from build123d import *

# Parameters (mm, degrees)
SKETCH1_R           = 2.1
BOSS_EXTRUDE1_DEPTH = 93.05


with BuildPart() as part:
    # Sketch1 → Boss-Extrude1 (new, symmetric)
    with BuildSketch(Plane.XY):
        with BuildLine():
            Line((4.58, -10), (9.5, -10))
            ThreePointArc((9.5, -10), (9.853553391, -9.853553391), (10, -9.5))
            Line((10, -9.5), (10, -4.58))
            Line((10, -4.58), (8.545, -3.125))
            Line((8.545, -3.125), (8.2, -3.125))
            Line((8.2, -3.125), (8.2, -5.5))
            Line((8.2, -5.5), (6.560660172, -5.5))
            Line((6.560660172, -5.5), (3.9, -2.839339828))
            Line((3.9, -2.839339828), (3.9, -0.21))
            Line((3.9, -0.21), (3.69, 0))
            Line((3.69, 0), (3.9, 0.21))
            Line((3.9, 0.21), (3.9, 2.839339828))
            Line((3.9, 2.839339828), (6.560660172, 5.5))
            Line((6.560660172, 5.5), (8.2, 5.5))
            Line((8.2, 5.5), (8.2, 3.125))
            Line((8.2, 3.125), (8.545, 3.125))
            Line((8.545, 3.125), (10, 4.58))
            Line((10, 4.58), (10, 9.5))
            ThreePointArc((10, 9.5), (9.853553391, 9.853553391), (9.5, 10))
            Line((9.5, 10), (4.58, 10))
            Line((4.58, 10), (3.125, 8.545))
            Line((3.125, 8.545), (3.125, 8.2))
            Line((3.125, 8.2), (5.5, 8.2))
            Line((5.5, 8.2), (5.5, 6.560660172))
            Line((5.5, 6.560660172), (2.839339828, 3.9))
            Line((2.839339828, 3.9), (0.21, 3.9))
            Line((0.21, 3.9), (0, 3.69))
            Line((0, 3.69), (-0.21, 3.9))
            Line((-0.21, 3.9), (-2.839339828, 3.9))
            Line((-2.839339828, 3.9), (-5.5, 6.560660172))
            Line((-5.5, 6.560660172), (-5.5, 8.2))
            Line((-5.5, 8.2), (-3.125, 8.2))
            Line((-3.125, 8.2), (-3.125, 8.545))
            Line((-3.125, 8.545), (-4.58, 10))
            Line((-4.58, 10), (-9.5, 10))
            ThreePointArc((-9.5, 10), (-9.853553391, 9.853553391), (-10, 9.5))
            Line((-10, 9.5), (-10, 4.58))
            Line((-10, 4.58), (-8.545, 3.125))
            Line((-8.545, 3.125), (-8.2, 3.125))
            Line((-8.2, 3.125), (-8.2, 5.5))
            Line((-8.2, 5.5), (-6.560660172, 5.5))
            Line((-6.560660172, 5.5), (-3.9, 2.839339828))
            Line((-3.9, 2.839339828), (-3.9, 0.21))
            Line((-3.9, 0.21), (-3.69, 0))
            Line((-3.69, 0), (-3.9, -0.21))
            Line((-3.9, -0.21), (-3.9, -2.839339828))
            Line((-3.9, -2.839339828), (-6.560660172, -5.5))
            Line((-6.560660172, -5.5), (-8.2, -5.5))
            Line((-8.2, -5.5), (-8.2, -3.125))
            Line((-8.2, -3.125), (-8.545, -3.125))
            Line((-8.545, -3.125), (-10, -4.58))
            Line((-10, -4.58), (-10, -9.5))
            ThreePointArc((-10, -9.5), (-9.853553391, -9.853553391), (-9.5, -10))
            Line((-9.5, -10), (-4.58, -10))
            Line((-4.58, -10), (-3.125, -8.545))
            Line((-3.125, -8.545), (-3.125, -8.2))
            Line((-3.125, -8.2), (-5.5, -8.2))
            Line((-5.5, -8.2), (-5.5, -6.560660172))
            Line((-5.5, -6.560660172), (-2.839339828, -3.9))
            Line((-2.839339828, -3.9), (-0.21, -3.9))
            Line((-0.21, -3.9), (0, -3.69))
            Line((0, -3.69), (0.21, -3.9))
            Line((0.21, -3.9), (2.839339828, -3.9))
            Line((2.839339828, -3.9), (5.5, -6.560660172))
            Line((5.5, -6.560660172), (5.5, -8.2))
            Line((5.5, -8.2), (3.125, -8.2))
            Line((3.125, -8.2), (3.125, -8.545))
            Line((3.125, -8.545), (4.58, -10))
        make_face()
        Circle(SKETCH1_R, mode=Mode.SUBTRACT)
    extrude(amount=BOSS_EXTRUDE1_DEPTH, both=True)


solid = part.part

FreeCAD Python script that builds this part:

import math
import FreeCAD as App
import Part
import Sketcher
from FreeCAD import Vector

doc = App.newDocument("Part")
params = doc.addObject("Spreadsheet::Sheet", "Params")
for row, (alias, value) in enumerate([
    ("sketch1_diameter", "4.2 mm"),
    ("sketch1_radius", "0.5 mm"),
    ("sketch1_width", "4.92 mm"),
    ("pad1_length", "186.1 mm"),
], start=1):
    params.set(f"A{row}", alias)
    params.set(f"B{row}", "=" + value)
    params.setAlias(f"B{row}", alias)

body = doc.addObject("PartDesign::Body", "Body")

sketch1 = body.newObject("Sketcher::SketchObject", "Sketch")
sketch1.AttachmentSupport = (doc.getObject("XY_Plane"), [""])
sketch1.MapMode = "FlatFace"
sketch1.addGeometry([
    Part.LineSegment(Vector(4.58, -10, 0), Vector(9.5, -10, 0)),
    Part.ArcOfCircle(Part.Circle(Vector(9.5, -9.5, 0), Vector(0, 0, 1), 0.5), math.radians(-90), math.radians(0)),
    Part.LineSegment(Vector(10, -9.5, 0), Vector(10, -4.58, 0)),
    Part.LineSegment(Vector(10, -4.58, 0), Vector(8.545, -3.125, 0)),
    Part.LineSegment(Vector(8.545, -3.125, 0), Vector(8.2, -3.125, 0)),
    Part.LineSegment(Vector(8.2, -3.125, 0), Vector(8.2, -5.5, 0)),
    Part.LineSegment(Vector(8.2, -5.5, 0), Vector(6.56066, -5.5, 0)),
    Part.LineSegment(Vector(6.56066, -5.5, 0), Vector(3.9, -2.83934, 0)),
    Part.LineSegment(Vector(3.9, -2.83934, 0), Vector(3.9, -0.21, 0)),
    Part.LineSegment(Vector(3.9, -0.21, 0), Vector(3.69, 0, 0)),
    Part.LineSegment(Vector(3.69, 0, 0), Vector(3.9, 0.21, 0)),
    Part.LineSegment(Vector(3.9, 0.21, 0), Vector(3.9, 2.83934, 0)),
    Part.LineSegment(Vector(3.9, 2.83934, 0), Vector(6.56066, 5.5, 0)),
    Part.LineSegment(Vector(6.56066, 5.5, 0), Vector(8.2, 5.5, 0)),
    Part.LineSegment(Vector(8.2, 5.5, 0), Vector(8.2, 3.125, 0)),
    Part.LineSegment(Vector(8.2, 3.125, 0), Vector(8.545, 3.125, 0)),
    Part.LineSegment(Vector(8.545, 3.125, 0), Vector(10, 4.58, 0)),
    Part.LineSegment(Vector(10, 4.58, 0), Vector(10, 9.5, 0)),
    Part.ArcOfCircle(Part.Circle(Vector(9.5, 9.5, 0), Vector(0, 0, 1), 0.5), math.radians(0), math.radians(90)),
    Part.LineSegment(Vector(9.5, 10, 0), Vector(4.58, 10, 0)),
    Part.LineSegment(Vector(4.58, 10, 0), Vector(3.125, 8.545, 0)),
    Part.LineSegment(Vector(3.125, 8.545, 0), Vector(3.125, 8.2, 0)),
    Part.LineSegment(Vector(3.125, 8.2, 0), Vector(5.5, 8.2, 0)),
    Part.LineSegment(Vector(5.5, 8.2, 0), Vector(5.5, 6.56066, 0)),
    Part.LineSegment(Vector(5.5, 6.56066, 0), Vector(2.83934, 3.9, 0)),
    Part.LineSegment(Vector(2.83934, 3.9, 0), Vector(0.21, 3.9, 0)),
    Part.LineSegment(Vector(0.21, 3.9, 0), Vector(0, 3.69, 0)),
    Part.LineSegment(Vector(0, 3.69, 0), Vector(-0.21, 3.9, 0)),
    Part.LineSegment(Vector(-0.21, 3.9, 0), Vector(-2.83934, 3.9, 0)),
    Part.LineSegment(Vector(-2.83934, 3.9, 0), Vector(-5.5, 6.56066, 0)),
    Part.LineSegment(Vector(-5.5, 6.56066, 0), Vector(-5.5, 8.2, 0)),
    Part.LineSegment(Vector(-5.5, 8.2, 0), Vector(-3.125, 8.2, 0)),
    Part.LineSegment(Vector(-3.125, 8.2, 0), Vector(-3.125, 8.545, 0)),
    Part.LineSegment(Vector(-3.125, 8.545, 0), Vector(-4.58, 10, 0)),
    Part.LineSegment(Vector(-4.58, 10, 0), Vector(-9.5, 10, 0)),
    Part.ArcOfCircle(Part.Circle(Vector(-9.5, 9.5, 0), Vector(0, 0, 1), 0.5), math.radians(90), math.radians(180)),
    Part.LineSegment(Vector(-10, 9.5, 0), Vector(-10, 4.58, 0)),
    Part.LineSegment(Vector(-10, 4.58, 0), Vector(-8.545, 3.125, 0)),
    Part.LineSegment(Vector(-8.545, 3.125, 0), Vector(-8.2, 3.125, 0)),
    Part.LineSegment(Vector(-8.2, 3.125, 0), Vector(-8.2, 5.5, 0)),
    Part.LineSegment(Vector(-8.2, 5.5, 0), Vector(-6.56066, 5.5, 0)),
    Part.LineSegment(Vector(-6.56066, 5.5, 0), Vector(-3.9, 2.83934, 0)),
    Part.LineSegment(Vector(-3.9, 2.83934, 0), Vector(-3.9, 0.21, 0)),
    Part.LineSegment(Vector(-3.9, 0.21, 0), Vector(-3.69, 0, 0)),
    Part.LineSegment(Vector(-3.69, 0, 0), Vector(-3.9, -0.21, 0)),
    Part.LineSegment(Vector(-3.9, -0.21, 0), Vector(-3.9, -2.83934, 0)),
    Part.LineSegment(Vector(-3.9, -2.83934, 0), Vector(-6.56066, -5.5, 0)),
    Part.LineSegment(Vector(-6.56066, -5.5, 0), Vector(-8.2, -5.5, 0)),
    Part.LineSegment(Vector(-8.2, -5.5, 0), Vector(-8.2, -3.125, 0)),
    Part.LineSegment(Vector(-8.2, -3.125, 0), Vector(-8.545, -3.125, 0)),
    Part.LineSegment(Vector(-8.545, -3.125, 0), Vector(-10, -4.58, 0)),
    Part.LineSegment(Vector(-10, -4.58, 0), Vector(-10, -9.5, 0)),
    Part.ArcOfCircle(Part.Circle(Vector(-9.5, -9.5, 0), Vector(0, 0, 1), 0.5), math.radians(180), math.radians(270)),
    Part.LineSegment(Vector(-9.5, -10, 0), Vector(-4.58, -10, 0)),
    Part.LineSegment(Vector(-4.58, -10, 0), Vector(-3.125, -8.545, 0)),
    Part.LineSegment(Vector(-3.125, -8.545, 0), Vector(-3.125, -8.2, 0)),
    Part.LineSegment(Vector(-3.125, -8.2, 0), Vector(-5.5, -8.2, 0)),
    Part.LineSegment(Vector(-5.5, -8.2, 0), Vector(-5.5, -6.56066, 0)),
    Part.LineSegment(Vector(-5.5, -6.56066, 0), Vector(-2.83934, -3.9, 0)),
    Part.LineSegment(Vector(-2.83934, -3.9, 0), Vector(-0.21, -3.9, 0)),
    Part.LineSegment(Vector(-0.21, -3.9, 0), Vector(0, -3.69, 0)),
    Part.LineSegment(Vector(0, -3.69, 0), Vector(0.21, -3.9, 0)),
    Part.LineSegment(Vector(0.21, -3.9, 0), Vector(2.83934, -3.9, 0)),
    Part.LineSegment(Vector(2.83934, -3.9, 0), Vector(5.5, -6.56066, 0)),
    Part.LineSegment(Vector(5.5, -6.56066, 0), Vector(5.5, -8.2, 0)),
    Part.LineSegment(Vector(5.5, -8.2, 0), Vector(3.125, -8.2, 0)),
    Part.LineSegment(Vector(3.125, -8.2, 0), Vector(3.125, -8.545, 0)),
    Part.LineSegment(Vector(3.125, -8.545, 0), Vector(4.58, -10, 0)),
    Part.Circle(Vector(0, 0, 0), Vector(0, 0, 1), 2.1),
], False)
sketch1.addConstraint([
    Sketcher.Constraint("Tangent", 0, 2, 1, 1),
    Sketcher.Constraint("Tangent", 1, 2, 2, 1),
    Sketcher.Constraint("Coincident", 2, 2, 3, 1),
    Sketcher.Constraint("Coincident", 3, 2, 4, 1),
    Sketcher.Constraint("Coincident", 4, 2, 5, 1),
    Sketcher.Constraint("Coincident", 5, 2, 6, 1),
    Sketcher.Constraint("Coincident", 6, 2, 7, 1),
    Sketcher.Constraint("Coincident", 7, 2, 8, 1),
    Sketcher.Constraint("Coincident", 8, 2, 9, 1),
    Sketcher.Constraint("Coincident", 9, 2, 10, 1),
    Sketcher.Constraint("Coincident", 10, 2, 11, 1),
    Sketcher.Constraint("Coincident", 11, 2, 12, 1),
    Sketcher.Constraint("Coincident", 12, 2, 13, 1),
    Sketcher.Constraint("Coincident", 13, 2, 14, 1),
    Sketcher.Constraint("Coincident", 14, 2, 15, 1),
    Sketcher.Constraint("Coincident", 15, 2, 16, 1),
    Sketcher.Constraint("Coincident", 16, 2, 17, 1),
    Sketcher.Constraint("Tangent", 17, 2, 18, 1),
    Sketcher.Constraint("Tangent", 18, 2, 19, 1),
    Sketcher.Constraint("Coincident", 19, 2, 20, 1),
    Sketcher.Constraint("Coincident", 20, 2, 21, 1),
    Sketcher.Constraint("Coincident", 21, 2, 22, 1),
    Sketcher.Constraint("Coincident", 22, 2, 23, 1),
    Sketcher.Constraint("Coincident", 23, 2, 24, 1),
    Sketcher.Constraint("Coincident", 24, 2, 25, 1),
    Sketcher.Constraint("Coincident", 25, 2, 26, 1),
    Sketcher.Constraint("Coincident", 26, 2, 27, 1),
    Sketcher.Constraint("Coincident", 27, 2, 28, 1),
    Sketcher.Constraint("Coincident", 28, 2, 29, 1),
    Sketcher.Constraint("Coincident", 29, 2, 30, 1),
    Sketcher.Constraint("Coincident", 30, 2, 31, 1),
    Sketcher.Constraint("Coincident", 31, 2, 32, 1),
    Sketcher.Constraint("Coincident", 32, 2, 33, 1),
    Sketcher.Constraint("Coincident", 33, 2, 34, 1),
    Sketcher.Constraint("Tangent", 34, 2, 35, 1),
    Sketcher.Constraint("Tangent", 35, 2, 36, 1),
    Sketcher.Constraint("Coincident", 36, 2, 37, 1),
    Sketcher.Constraint("Coincident", 37, 2, 38, 1),
    Sketcher.Constraint("Coincident", 38, 2, 39, 1),
    Sketcher.Constraint("Coincident", 39, 2, 40, 1),
    Sketcher.Constraint("Coincident", 40, 2, 41, 1),
    Sketcher.Constraint("Coincident", 41, 2, 42, 1),
    Sketcher.Constraint("Coincident", 42, 2, 43, 1),
    Sketcher.Constraint("Coincident", 43, 2, 44, 1),
    Sketcher.Constraint("Coincident", 44, 2, 45, 1),
    Sketcher.Constraint("Coincident", 45, 2, 46, 1),
    Sketcher.Constraint("Coincident", 46, 2, 47, 1),
    Sketcher.Constraint("Coincident", 47, 2, 48, 1),
    Sketcher.Constraint("Coincident", 48, 2, 49, 1),
    Sketcher.Constraint("Coincident", 49, 2, 50, 1),
    Sketcher.Constraint("Coincident", 50, 2, 51, 1),
    Sketcher.Constraint("Tangent", 51, 2, 52, 1),
    Sketcher.Constraint("Tangent", 52, 2, 53, 1),
    Sketcher.Constraint("Coincident", 53, 2, 54, 1),
    Sketcher.Constraint("Coincident", 54, 2, 55, 1),
    Sketcher.Constraint("Coincident", 55, 2, 56, 1),
    Sketcher.Constraint("Coincident", 56, 2, 57, 1),
    Sketcher.Constraint("Coincident", 57, 2, 58, 1),
    Sketcher.Constraint("Coincident", 58, 2, 59, 1),
    Sketcher.Constraint("Coincident", 59, 2, 60, 1),
    Sketcher.Constraint("Coincident", 60, 2, 61, 1),
    Sketcher.Constraint("Coincident", 61, 2, 62, 1),
    Sketcher.Constraint("Coincident", 62, 2, 63, 1),
    Sketcher.Constraint("Coincident", 63, 2, 64, 1),
    Sketcher.Constraint("Coincident", 64, 2, 65, 1),
    Sketcher.Constraint("Coincident", 65, 2, 66, 1),
    Sketcher.Constraint("Coincident", 66, 2, 67, 1),
    Sketcher.Constraint("Coincident", 67, 2, 0, 1),
    Sketcher.Constraint("Horizontal", 0),
    Sketcher.Constraint("Vertical", 2),
    Sketcher.Constraint("Horizontal", 4),
    Sketcher.Constraint("Vertical", 5),
    Sketcher.Constraint("Horizontal", 6),
    Sketcher.Constraint("Vertical", 8),
    Sketcher.Constraint("Vertical", 11),
    Sketcher.Constraint("Horizontal", 13),
    Sketcher.Constraint("Vertical", 14),
    Sketcher.Constraint("Horizontal", 15),
    Sketcher.Constraint("Vertical", 17),
    Sketcher.Constraint("Horizontal", 19),
    Sketcher.Constraint("Vertical", 21),
    Sketcher.Constraint("Horizontal", 22),
    Sketcher.Constraint("Vertical", 23),
    Sketcher.Constraint("Horizontal", 25),
    Sketcher.Constraint("Horizontal", 28),
    Sketcher.Constraint("Vertical", 30),
    Sketcher.Constraint("Horizontal", 31),
    Sketcher.Constraint("Vertical", 32),
    Sketcher.Constraint("Horizontal", 34),
    Sketcher.Constraint("Vertical", 36),
    Sketcher.Constraint("Horizontal", 38),
    Sketcher.Constraint("Vertical", 39),
    Sketcher.Constraint("Horizontal", 40),
    Sketcher.Constraint("Vertical", 42),
    Sketcher.Constraint("Vertical", 45),
    Sketcher.Constraint("Horizontal", 47),
    Sketcher.Constraint("Vertical", 48),
    Sketcher.Constraint("Horizontal", 49),
    Sketcher.Constraint("Vertical", 51),
    Sketcher.Constraint("Horizontal", 53),
    Sketcher.Constraint("Vertical", 55),
    Sketcher.Constraint("Horizontal", 56),
    Sketcher.Constraint("Vertical", 57),
    Sketcher.Constraint("Horizontal", 59),
    Sketcher.Constraint("Horizontal", 62),
    Sketcher.Constraint("Vertical", 64),
    Sketcher.Constraint("Horizontal", 65),
    Sketcher.Constraint("Vertical", 66),
    Sketcher.Constraint("Coincident", 68, 3, -1, 1),
    Sketcher.Constraint("Equal", 1, 18),
    Sketcher.Constraint("Equal", 18, 35),
    Sketcher.Constraint("Equal", 35, 52),
    Sketcher.Constraint("Symmetric", 1, 3, 35, 3, -1, 1),
    Sketcher.Constraint("Symmetric", 18, 3, 52, 3, -1, 1),
    Sketcher.Constraint("Symmetric", 3, 2, 37, 2, -1, 1),
    Sketcher.Constraint("Symmetric", 5, 2, 39, 2, -1, 1),
    Sketcher.Constraint("Symmetric", 7, 2, 41, 2, -1, 1),
    Sketcher.Constraint("Symmetric", 9, 2, 43, 2, -1, 1),
    Sketcher.Constraint("Symmetric", 10, 2, 44, 2, -1, 1),
    Sketcher.Constraint("Symmetric", 12, 2, 46, 2, -1, 1),
    Sketcher.Constraint("Symmetric", 14, 2, 48, 2, -1, 1),
    Sketcher.Constraint("Symmetric", 20, 2, 54, 2, -1, 1),
    Sketcher.Constraint("Symmetric", 22, 2, 56, 2, -1, 1),
    Sketcher.Constraint("Symmetric", 24, 2, 58, 2, -1, 1),
    Sketcher.Constraint("Symmetric", 26, 2, 60, 2, -1, 1),
    Sketcher.Constraint("Symmetric", 27, 2, 61, 2, -1, 1),
    Sketcher.Constraint("Symmetric", 29, 2, 63, 2, -1, 1),
    Sketcher.Constraint("Symmetric", 31, 2, 65, 2, -1, 1),
    Sketcher.Constraint("Symmetric", 18, 3, 35, 3, -2),
    Sketcher.Constraint("Symmetric", 25, 2, 27, 2, -2),
    Sketcher.Constraint("Symmetric", 23, 2, 29, 2, -2),
    Sketcher.Constraint("Symmetric", 21, 2, 31, 2, -2),
    Sketcher.Constraint("Symmetric", 15, 2, 37, 2, -2),
    Sketcher.Constraint("Symmetric", 13, 2, 39, 2, -2),
    Sketcher.Constraint("Symmetric", 11, 2, 41, 2, -2),
    Sketcher.Constraint("PointOnObject", 9, 2, -1),
    Sketcher.Constraint("PointOnObject", 26, 2, -2),
    Sketcher.Constraint("Parallel", 3, 7),
    Sketcher.Constraint("Parallel", 7, 9),
    Sketcher.Constraint("Perpendicular", 9, 10),
    Sketcher.Constraint("Parallel", 10, 12),
    Sketcher.Constraint("Parallel", 12, 16),
    Sketcher.Constraint("Parallel", 16, 20),
    Sketcher.Constraint("Parallel", 20, 24),
    Sketcher.Constraint("Parallel", 24, 26),
    Sketcher.Constraint("Perpendicular", 26, 27),
    Sketcher.Constraint("Parallel", 27, 29),
    Sketcher.Constraint("Parallel", 29, 33),
    Sketcher.Constraint("Parallel", 33, 37),
    Sketcher.Constraint("Parallel", 37, 41),
    Sketcher.Constraint("Parallel", 41, 43),
    Sketcher.Constraint("Parallel", 44, 46),
    Sketcher.Constraint("Parallel", 46, 50),
    Sketcher.Constraint("Parallel", 50, 54),
    Sketcher.Constraint("Parallel", 54, 58),
    Sketcher.Constraint("Parallel", 58, 60),
    Sketcher.Constraint("Parallel", 61, 63),
    Sketcher.Constraint("Parallel", 63, 67),
    Sketcher.Constraint("Horizontal", 20, 2, 32, 2),
    Sketcher.Constraint("Horizontal", 2, 2, 50, 2),
    Sketcher.Constraint("Horizontal", 54, 2, 66, 2),
    Sketcher.Constraint("Equal", 53, 2),
    Sketcher.Constraint("Equal", 65, 5),
    Sketcher.Constraint("Equal", 62, 8),
    Sketcher.Constraint("Equal", 49, 21),
    Sketcher.Constraint("Equal", 47, 23),
    Sketcher.Constraint("Equal", 16, 20),
    Sketcher.Constraint("Equal", 12, 24),
    Sketcher.Constraint("Equal", 10, 26),
    Sketcher.Constraint("Diameter", 68, 4.2),
    Sketcher.Constraint("Radius", 1, 0.5),
    Sketcher.Constraint("DistanceY", 0, 2, -1, 1, 10.0),
    Sketcher.Constraint("DistanceX", 0, 1, 0, 2, 4.92),
    Sketcher.Constraint("DistanceX", -1, 1, 4, 2, 8.2),
    Sketcher.Constraint("DistanceY", 5, 2, -1, 1, 5.5),
    Sketcher.Constraint("DistanceX", -1, 1, 7, 2, 3.9),
    Sketcher.Constraint("DistanceX", 4, 2, 4, 1, 0.345),
    Sketcher.Constraint("DistanceY", 8, 2, -1, 1, 0.21),
    Sketcher.Constraint("DistanceX", 6, 2, 6, 1, 1.63934),
])
sketch1.setExpression("Constraints[169]", "Params.sketch1_diameter")
sketch1.setExpression("Constraints[170]", "Params.sketch1_radius")
sketch1.setExpression("Constraints[172]", "Params.sketch1_width")
pad1 = body.newObject("PartDesign::Pad", "Pad")
pad1.Profile = sketch1
pad1.setExpression("Length", "Params.pad1_length")
pad1.Midplane = True

doc.recompute()
